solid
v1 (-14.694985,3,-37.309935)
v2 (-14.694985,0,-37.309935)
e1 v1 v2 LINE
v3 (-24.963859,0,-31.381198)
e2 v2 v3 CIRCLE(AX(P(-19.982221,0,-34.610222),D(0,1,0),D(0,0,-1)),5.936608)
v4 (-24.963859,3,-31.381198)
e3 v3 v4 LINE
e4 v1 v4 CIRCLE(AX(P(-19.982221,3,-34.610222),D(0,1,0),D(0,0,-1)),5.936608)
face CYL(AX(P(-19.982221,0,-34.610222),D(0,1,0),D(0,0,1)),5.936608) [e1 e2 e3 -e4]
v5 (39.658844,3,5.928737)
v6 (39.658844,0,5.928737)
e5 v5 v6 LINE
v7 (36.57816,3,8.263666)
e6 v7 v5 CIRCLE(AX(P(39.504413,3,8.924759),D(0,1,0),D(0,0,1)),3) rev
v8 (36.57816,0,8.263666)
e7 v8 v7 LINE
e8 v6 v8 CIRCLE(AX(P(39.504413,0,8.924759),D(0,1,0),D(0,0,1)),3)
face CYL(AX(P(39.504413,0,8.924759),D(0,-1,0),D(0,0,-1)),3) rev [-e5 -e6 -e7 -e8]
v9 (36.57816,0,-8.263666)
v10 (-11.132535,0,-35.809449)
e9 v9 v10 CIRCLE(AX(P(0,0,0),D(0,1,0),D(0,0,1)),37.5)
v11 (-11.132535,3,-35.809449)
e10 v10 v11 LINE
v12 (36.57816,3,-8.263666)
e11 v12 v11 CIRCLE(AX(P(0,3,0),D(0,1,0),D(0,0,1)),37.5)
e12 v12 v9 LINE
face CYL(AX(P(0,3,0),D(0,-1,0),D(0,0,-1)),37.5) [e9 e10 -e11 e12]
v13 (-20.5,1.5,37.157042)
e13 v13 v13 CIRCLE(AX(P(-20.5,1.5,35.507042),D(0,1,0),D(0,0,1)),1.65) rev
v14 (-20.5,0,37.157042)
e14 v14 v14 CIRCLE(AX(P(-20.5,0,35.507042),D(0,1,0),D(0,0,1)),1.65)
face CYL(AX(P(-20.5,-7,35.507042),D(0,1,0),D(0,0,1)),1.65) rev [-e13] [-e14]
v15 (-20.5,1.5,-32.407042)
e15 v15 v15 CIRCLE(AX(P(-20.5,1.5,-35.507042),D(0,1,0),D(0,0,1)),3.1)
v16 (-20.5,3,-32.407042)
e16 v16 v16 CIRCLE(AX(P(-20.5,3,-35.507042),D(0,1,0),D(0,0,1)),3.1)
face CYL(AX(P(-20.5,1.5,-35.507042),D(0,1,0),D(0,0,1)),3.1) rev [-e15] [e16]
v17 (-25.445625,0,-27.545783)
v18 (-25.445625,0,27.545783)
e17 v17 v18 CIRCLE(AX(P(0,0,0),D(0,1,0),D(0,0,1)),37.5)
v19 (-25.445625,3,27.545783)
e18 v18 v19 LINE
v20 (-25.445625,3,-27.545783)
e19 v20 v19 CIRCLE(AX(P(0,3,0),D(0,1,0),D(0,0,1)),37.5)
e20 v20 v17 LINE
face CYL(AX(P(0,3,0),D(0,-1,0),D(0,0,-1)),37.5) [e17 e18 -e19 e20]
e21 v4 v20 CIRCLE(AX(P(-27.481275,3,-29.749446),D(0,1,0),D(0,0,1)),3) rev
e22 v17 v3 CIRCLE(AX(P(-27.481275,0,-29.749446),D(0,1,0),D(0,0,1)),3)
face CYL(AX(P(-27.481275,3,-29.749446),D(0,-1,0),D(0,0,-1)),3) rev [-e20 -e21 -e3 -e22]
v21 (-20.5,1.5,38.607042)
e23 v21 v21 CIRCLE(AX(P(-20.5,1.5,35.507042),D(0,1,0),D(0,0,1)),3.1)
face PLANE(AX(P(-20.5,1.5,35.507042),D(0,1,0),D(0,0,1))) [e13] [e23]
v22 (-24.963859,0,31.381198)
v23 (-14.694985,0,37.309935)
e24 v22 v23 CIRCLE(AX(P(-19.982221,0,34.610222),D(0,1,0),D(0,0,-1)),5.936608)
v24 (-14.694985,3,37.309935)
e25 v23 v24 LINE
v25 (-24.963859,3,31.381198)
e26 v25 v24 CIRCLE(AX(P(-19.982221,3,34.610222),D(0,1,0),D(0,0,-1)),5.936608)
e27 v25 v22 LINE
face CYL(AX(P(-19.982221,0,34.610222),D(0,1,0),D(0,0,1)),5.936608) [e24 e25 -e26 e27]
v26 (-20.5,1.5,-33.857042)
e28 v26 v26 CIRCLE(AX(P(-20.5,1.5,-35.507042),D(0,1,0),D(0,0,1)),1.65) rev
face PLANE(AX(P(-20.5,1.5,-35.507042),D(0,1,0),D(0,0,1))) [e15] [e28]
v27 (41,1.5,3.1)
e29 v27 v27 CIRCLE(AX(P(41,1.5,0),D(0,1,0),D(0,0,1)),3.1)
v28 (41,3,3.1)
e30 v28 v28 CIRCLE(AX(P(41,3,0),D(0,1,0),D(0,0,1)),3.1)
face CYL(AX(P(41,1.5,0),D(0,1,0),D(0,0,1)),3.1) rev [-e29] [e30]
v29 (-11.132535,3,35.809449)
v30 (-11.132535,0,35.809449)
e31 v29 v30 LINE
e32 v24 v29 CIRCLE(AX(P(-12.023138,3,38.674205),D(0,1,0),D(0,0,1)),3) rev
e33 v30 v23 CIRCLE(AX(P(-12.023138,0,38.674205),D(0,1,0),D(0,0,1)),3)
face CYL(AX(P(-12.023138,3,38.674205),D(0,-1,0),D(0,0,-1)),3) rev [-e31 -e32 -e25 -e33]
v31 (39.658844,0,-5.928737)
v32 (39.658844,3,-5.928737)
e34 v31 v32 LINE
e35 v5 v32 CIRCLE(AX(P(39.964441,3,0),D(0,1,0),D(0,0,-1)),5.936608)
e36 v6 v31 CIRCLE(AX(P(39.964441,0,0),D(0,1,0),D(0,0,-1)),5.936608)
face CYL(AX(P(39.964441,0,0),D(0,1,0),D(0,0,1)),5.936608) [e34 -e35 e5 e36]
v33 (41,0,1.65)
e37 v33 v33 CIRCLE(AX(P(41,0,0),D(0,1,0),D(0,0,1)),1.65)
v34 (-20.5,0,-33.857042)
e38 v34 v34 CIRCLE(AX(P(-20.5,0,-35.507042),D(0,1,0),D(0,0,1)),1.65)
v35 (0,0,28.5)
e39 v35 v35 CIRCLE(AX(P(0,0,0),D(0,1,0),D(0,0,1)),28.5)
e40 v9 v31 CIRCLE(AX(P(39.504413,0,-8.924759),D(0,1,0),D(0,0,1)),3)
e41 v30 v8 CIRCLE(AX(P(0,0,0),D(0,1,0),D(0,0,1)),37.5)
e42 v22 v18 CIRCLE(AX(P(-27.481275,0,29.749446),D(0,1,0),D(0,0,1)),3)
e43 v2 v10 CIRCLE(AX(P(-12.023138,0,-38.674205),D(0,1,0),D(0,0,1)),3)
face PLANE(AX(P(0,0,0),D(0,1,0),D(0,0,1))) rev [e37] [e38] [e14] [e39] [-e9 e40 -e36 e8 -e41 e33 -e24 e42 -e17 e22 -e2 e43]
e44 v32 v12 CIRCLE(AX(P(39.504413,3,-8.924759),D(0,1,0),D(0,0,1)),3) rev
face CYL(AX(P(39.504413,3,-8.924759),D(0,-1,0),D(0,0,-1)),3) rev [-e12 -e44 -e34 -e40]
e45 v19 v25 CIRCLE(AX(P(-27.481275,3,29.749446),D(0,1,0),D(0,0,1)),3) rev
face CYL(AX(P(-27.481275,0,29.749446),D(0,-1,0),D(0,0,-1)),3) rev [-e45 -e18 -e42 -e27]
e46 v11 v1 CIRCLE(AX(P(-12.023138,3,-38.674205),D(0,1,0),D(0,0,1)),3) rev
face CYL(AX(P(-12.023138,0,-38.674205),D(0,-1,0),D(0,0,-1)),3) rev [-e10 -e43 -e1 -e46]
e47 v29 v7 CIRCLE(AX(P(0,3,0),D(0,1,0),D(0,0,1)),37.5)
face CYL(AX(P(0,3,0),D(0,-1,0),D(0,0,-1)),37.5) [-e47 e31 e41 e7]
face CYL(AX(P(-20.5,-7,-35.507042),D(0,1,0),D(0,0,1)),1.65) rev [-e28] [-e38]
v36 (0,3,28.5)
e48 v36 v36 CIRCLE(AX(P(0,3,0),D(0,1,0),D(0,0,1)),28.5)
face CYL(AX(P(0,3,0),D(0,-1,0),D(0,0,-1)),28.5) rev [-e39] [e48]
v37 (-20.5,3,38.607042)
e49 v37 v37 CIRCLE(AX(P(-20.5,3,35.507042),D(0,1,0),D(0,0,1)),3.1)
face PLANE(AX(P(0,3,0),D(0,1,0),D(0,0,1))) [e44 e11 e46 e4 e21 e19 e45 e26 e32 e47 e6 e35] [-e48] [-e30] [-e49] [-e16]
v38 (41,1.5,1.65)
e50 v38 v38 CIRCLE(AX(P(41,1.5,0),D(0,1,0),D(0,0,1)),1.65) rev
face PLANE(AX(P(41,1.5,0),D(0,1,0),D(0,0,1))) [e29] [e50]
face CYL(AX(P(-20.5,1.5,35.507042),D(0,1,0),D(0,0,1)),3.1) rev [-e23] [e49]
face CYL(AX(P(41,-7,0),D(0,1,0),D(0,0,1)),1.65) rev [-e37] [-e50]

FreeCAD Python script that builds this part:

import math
import FreeCAD as App
import Part
import Sketcher

V = App.Vector
Q = App.Units.Quantity


def edges_at(feature, points):
    """Names of the edges that pass closest to the given points."""
    edges = feature.Shape.Edges
    near = lambda p: min(range(len(edges)), key=lambda i: edges[i].distToShape(Part.Vertex(*p))[0])
    return sorted({f"Edge{near(p) + 1}" for p in points})

doc = App.newDocument("Part")
body = doc.addObject("PartDesign::Body", "Body")

sketch1 = body.newObject("Sketcher::SketchObject", "Sketch")
sketch1.AttachmentSupport = (doc.getObject("XZ_Plane"), [""])
sketch1.MapMode = "FlatFace"
sketch1.addGeometry(Part.Circle(V(0, 0, 0), V(0, 0, 1), 38), False)
sketch1.addGeometry(Part.Circle(V(0, 0, 0), V(0, 0, 1), 28), False)
sketch1.addConstraint(Sketcher.Constraint("Coincident", 0, 3, -1, 1))
sketch1.addConstraint(Sketcher.Constraint("Coincident", 1, 3, -1, 1))
sketch1.addConstraint(Sketcher.Constraint("Diameter", 0, Q("75 mm")))
sketch1.addConstraint(Sketcher.Constraint("Diameter", 1, Q("57 mm")))
pad1 = body.newObject("PartDesign::Pad", "Pad")
pad1.Profile = sketch1
pad1.Length = 3
pad1.Reversed = True

sketch2 = body.newObject("Sketcher::SketchObject", "Sketch001")
sketch2.AttachmentSupport = (doc.getObject("XZ_Plane"), [""])
sketch2.MapMode = "FlatFace"
sketch2.addGeometry(Part.ArcOfCircle(Part.Circle(V(39.964441, 0, 0), V(0, 0, 1), 5.936608), math.radians(-118.463595), math.radians(118.463595)), False)
sketch2.addGeometry(Part.ArcOfCircle(Part.Circle(V(0, 0, 0), V(0, 0, 1), 37.5), math.radians(-8), math.radians(8)), False)
sketch2.addGeometry(Part.ArcOfCircle(Part.Circle(V(-19.982221, 34.610222, 0), V(0, 0, 1), 5.936608), math.radians(1.536405), math.radians(238.463595)), False)
sketch2.addGeometry(Part.ArcOfCircle(Part.Circle(V(0, 0, 0), V(0, 0, 1), 37.5), math.radians(112), math.radians(128)), False)
sketch2.addGeometry(Part.ArcOfCircle(Part.Circle(V(-19.982221, -34.610222, 0), V(0, 0, 1), 5.936608), math.radians(121.536405), math.radians(358.463595)), False)
sketch2.addGeometry(Part.ArcOfCircle(Part.Circle(V(0, 0, 0), V(0, 0, 1), 37.5), math.radians(-128), math.radians(-112)), False)
sketch2.addConstraint(Sketcher.Constraint("Coincident", 0, 1, 1, 1))
sketch2.addConstraint(Sketcher.Constraint("Coincident", 1, 2, 0, 2))
sketch2.addConstraint(Sketcher.Constraint("Coincident", 2, 1, 3, 1))
sketch2.addConstraint(Sketcher.Constraint("Coincident", 3, 2, 2, 2))
sketch2.addConstraint(Sketcher.Constraint("Coincident", 4, 1, 5, 1))
sketch2.addConstraint(Sketcher.Constraint("Coincident", 5, 2, 4, 2))
sketch2.addConstraint(Sketcher.Constraint("Coincident", 1, 3, -1, 1))
sketch2.addConstraint(Sketcher.Constraint("Coincident", 3, 3, -1, 1))
sketch2.addConstraint(Sketcher.Constraint("Coincident", 5, 3, -1, 1))
sketch2.addConstraint(Sketcher.Constraint("Equal", 0, 2))
sketch2.addConstraint(Sketcher.Constraint("Equal", 1, 3))
sketch2.addConstraint(Sketcher.Constraint("Equal", 2, 4))
sketch2.addConstraint(Sketcher.Constraint("Equal", 3, 5))
sketch2.addConstraint(Sketcher.Constraint("Symmetric", 2, 3, 4, 3, -1))
sketch2.addConstraint(Sketcher.Constraint("PointOnObject", 0, 3, -1))
sketch2.addConstraint(Sketcher.Constraint("Radius", 1, Q("37.5 mm")))
sketch2.addConstraint(Sketcher.Constraint("Radius", 0, Q("5.936608 mm")))
sketch2.addConstraint(Sketcher.Constraint("DistanceX", 2, 1, 1, 2, Q("51.1828 mm")))
sketch2.addConstraint(Sketcher.Constraint("DistanceX", -1, 1, 0, 3, Q("39.964441 mm")))
sketch2.addConstraint(Sketcher.Constraint("DistanceX", 2, 3, -1, 1, Q("19.982221 mm")))
pad2 = body.newObject("PartDesign::Pad", "Pad001")
pad2.Profile = sketch2
pad2.Length = 3
pad2.Reversed = True

sketch3 = body.newObject("Sketcher::SketchObject", "Sketch002")
sketch3.AttachmentSupport = (doc.getObject("XZ_Plane"), [""])
sketch3.MapMode = "FlatFace"
sketch3.AttachmentOffset = App.Placement(V(0, 0, -3), App.Rotation())
sketch3.addGeometry(Part.Circle(V(41, 0, 0), V(0, 0, 1), 1.6), False)
sketch3.addGeometry(Part.Circle(V(-20.5, 35.5, 0), V(0, 0, 1), 1.6), False)
sketch3.addGeometry(Part.Circle(V(-20.5, -35.5, 0), V(0, 0, 1), 1.6), False)
sketch3.addConstraint(Sketcher.Constraint("Equal", 0, 1))
sketch3.addConstraint(Sketcher.Constraint("Equal", 1, 2))
sketch3.addConstraint(Sketcher.Constraint("Symmetric", 1, 3, 2, 3, -1))
sketch3.addConstraint(Sketcher.Constraint("PointOnObject", 0, 3, -1))
sketch3.addConstraint(Sketcher.Constraint("Diameter", 0, Q("3.3 mm")))
sketch3.addConstraint(Sketcher.Constraint("DistanceX", -1, 1, 0, 3, Q("41 mm")))
sketch3.addConstraint(Sketcher.Constraint("DistanceX", 1, 3, -1, 1, Q("20.5 mm")))
sketch3.addConstraint(Sketcher.Constraint("DistanceY", -1, 1, 1, 3, Q("35.507042 mm")))
pocket1 = body.newObject("PartDesign::Pocket", "Pocket")
pocket1.Profile = sketch3
pocket1.Length = 10
pocket1.Reversed = True

sketch4 = body.newObject("Sketcher::SketchObject", "Sketch003")
sketch4.AttachmentSupport = (doc.getObject("XZ_Plane"), [""])
sketch4.MapMode = "FlatFace"
sketch4.AttachmentOffset = App.Placement(V(0, 0, -3), App.Rotation())
sketch4.addGeometry(Part.Circle(V(41, 0, 0), V(0, 0, 1), 3.1), False)
sketch4.addGeometry(Part.Circle(V(-20.5, 35.5, 0), V(0, 0, 1), 3.1), False)
sketch4.addGeometry(Part.Circle(V(-20.5, -35.5, 0), V(0, 0, 1), 3.1), False)
sketch4.addConstraint(Sketcher.Constraint("Equal", 0, 1))
sketch4.addConstraint(Sketcher.Constraint("Equal", 1, 2))
sketch4.addConstraint(Sketcher.Constraint("Symmetric", 1, 3, 2, 3, -1))
sketch4.addConstraint(Sketcher.Constraint("PointOnObject", 0, 3, -1))
sketch4.addConstraint(Sketcher.Constraint("Diameter", 0, Q("6.2 mm")))
sketch4.addConstraint(Sketcher.Constraint("DistanceX", -1, 1, 0, 3, Q("41 mm")))
sketch4.addConstraint(Sketcher.Constraint("DistanceX", 1, 3, -1, 1, Q("20.5 mm")))
sketch4.addConstraint(Sketcher.Constraint("DistanceY", -1, 1, 1, 3, Q("35.507042 mm")))
pocket2 = body.newObject("PartDesign::Pocket", "Pocket001")
pocket2.Profile = sketch4
pocket2.Length = 1.5
pocket2.Reversed = True
doc.recompute()

fillet = body.newObject("PartDesign::Fillet", "Fillet")
fillet.Base = (pocket2, edges_at(pocket2, [
    (37.135, 1.5, 5.219),
    (37.135, 1.5, -5.219),
    (-23.087, 1.5, 29.55),
    (-14.048, 1.5, 34.769),
    (-14.048, 1.5, -34.769),
    (-23.087, 1.5, -29.55),
]))
fillet.Radius = 3

doc.recompute()
